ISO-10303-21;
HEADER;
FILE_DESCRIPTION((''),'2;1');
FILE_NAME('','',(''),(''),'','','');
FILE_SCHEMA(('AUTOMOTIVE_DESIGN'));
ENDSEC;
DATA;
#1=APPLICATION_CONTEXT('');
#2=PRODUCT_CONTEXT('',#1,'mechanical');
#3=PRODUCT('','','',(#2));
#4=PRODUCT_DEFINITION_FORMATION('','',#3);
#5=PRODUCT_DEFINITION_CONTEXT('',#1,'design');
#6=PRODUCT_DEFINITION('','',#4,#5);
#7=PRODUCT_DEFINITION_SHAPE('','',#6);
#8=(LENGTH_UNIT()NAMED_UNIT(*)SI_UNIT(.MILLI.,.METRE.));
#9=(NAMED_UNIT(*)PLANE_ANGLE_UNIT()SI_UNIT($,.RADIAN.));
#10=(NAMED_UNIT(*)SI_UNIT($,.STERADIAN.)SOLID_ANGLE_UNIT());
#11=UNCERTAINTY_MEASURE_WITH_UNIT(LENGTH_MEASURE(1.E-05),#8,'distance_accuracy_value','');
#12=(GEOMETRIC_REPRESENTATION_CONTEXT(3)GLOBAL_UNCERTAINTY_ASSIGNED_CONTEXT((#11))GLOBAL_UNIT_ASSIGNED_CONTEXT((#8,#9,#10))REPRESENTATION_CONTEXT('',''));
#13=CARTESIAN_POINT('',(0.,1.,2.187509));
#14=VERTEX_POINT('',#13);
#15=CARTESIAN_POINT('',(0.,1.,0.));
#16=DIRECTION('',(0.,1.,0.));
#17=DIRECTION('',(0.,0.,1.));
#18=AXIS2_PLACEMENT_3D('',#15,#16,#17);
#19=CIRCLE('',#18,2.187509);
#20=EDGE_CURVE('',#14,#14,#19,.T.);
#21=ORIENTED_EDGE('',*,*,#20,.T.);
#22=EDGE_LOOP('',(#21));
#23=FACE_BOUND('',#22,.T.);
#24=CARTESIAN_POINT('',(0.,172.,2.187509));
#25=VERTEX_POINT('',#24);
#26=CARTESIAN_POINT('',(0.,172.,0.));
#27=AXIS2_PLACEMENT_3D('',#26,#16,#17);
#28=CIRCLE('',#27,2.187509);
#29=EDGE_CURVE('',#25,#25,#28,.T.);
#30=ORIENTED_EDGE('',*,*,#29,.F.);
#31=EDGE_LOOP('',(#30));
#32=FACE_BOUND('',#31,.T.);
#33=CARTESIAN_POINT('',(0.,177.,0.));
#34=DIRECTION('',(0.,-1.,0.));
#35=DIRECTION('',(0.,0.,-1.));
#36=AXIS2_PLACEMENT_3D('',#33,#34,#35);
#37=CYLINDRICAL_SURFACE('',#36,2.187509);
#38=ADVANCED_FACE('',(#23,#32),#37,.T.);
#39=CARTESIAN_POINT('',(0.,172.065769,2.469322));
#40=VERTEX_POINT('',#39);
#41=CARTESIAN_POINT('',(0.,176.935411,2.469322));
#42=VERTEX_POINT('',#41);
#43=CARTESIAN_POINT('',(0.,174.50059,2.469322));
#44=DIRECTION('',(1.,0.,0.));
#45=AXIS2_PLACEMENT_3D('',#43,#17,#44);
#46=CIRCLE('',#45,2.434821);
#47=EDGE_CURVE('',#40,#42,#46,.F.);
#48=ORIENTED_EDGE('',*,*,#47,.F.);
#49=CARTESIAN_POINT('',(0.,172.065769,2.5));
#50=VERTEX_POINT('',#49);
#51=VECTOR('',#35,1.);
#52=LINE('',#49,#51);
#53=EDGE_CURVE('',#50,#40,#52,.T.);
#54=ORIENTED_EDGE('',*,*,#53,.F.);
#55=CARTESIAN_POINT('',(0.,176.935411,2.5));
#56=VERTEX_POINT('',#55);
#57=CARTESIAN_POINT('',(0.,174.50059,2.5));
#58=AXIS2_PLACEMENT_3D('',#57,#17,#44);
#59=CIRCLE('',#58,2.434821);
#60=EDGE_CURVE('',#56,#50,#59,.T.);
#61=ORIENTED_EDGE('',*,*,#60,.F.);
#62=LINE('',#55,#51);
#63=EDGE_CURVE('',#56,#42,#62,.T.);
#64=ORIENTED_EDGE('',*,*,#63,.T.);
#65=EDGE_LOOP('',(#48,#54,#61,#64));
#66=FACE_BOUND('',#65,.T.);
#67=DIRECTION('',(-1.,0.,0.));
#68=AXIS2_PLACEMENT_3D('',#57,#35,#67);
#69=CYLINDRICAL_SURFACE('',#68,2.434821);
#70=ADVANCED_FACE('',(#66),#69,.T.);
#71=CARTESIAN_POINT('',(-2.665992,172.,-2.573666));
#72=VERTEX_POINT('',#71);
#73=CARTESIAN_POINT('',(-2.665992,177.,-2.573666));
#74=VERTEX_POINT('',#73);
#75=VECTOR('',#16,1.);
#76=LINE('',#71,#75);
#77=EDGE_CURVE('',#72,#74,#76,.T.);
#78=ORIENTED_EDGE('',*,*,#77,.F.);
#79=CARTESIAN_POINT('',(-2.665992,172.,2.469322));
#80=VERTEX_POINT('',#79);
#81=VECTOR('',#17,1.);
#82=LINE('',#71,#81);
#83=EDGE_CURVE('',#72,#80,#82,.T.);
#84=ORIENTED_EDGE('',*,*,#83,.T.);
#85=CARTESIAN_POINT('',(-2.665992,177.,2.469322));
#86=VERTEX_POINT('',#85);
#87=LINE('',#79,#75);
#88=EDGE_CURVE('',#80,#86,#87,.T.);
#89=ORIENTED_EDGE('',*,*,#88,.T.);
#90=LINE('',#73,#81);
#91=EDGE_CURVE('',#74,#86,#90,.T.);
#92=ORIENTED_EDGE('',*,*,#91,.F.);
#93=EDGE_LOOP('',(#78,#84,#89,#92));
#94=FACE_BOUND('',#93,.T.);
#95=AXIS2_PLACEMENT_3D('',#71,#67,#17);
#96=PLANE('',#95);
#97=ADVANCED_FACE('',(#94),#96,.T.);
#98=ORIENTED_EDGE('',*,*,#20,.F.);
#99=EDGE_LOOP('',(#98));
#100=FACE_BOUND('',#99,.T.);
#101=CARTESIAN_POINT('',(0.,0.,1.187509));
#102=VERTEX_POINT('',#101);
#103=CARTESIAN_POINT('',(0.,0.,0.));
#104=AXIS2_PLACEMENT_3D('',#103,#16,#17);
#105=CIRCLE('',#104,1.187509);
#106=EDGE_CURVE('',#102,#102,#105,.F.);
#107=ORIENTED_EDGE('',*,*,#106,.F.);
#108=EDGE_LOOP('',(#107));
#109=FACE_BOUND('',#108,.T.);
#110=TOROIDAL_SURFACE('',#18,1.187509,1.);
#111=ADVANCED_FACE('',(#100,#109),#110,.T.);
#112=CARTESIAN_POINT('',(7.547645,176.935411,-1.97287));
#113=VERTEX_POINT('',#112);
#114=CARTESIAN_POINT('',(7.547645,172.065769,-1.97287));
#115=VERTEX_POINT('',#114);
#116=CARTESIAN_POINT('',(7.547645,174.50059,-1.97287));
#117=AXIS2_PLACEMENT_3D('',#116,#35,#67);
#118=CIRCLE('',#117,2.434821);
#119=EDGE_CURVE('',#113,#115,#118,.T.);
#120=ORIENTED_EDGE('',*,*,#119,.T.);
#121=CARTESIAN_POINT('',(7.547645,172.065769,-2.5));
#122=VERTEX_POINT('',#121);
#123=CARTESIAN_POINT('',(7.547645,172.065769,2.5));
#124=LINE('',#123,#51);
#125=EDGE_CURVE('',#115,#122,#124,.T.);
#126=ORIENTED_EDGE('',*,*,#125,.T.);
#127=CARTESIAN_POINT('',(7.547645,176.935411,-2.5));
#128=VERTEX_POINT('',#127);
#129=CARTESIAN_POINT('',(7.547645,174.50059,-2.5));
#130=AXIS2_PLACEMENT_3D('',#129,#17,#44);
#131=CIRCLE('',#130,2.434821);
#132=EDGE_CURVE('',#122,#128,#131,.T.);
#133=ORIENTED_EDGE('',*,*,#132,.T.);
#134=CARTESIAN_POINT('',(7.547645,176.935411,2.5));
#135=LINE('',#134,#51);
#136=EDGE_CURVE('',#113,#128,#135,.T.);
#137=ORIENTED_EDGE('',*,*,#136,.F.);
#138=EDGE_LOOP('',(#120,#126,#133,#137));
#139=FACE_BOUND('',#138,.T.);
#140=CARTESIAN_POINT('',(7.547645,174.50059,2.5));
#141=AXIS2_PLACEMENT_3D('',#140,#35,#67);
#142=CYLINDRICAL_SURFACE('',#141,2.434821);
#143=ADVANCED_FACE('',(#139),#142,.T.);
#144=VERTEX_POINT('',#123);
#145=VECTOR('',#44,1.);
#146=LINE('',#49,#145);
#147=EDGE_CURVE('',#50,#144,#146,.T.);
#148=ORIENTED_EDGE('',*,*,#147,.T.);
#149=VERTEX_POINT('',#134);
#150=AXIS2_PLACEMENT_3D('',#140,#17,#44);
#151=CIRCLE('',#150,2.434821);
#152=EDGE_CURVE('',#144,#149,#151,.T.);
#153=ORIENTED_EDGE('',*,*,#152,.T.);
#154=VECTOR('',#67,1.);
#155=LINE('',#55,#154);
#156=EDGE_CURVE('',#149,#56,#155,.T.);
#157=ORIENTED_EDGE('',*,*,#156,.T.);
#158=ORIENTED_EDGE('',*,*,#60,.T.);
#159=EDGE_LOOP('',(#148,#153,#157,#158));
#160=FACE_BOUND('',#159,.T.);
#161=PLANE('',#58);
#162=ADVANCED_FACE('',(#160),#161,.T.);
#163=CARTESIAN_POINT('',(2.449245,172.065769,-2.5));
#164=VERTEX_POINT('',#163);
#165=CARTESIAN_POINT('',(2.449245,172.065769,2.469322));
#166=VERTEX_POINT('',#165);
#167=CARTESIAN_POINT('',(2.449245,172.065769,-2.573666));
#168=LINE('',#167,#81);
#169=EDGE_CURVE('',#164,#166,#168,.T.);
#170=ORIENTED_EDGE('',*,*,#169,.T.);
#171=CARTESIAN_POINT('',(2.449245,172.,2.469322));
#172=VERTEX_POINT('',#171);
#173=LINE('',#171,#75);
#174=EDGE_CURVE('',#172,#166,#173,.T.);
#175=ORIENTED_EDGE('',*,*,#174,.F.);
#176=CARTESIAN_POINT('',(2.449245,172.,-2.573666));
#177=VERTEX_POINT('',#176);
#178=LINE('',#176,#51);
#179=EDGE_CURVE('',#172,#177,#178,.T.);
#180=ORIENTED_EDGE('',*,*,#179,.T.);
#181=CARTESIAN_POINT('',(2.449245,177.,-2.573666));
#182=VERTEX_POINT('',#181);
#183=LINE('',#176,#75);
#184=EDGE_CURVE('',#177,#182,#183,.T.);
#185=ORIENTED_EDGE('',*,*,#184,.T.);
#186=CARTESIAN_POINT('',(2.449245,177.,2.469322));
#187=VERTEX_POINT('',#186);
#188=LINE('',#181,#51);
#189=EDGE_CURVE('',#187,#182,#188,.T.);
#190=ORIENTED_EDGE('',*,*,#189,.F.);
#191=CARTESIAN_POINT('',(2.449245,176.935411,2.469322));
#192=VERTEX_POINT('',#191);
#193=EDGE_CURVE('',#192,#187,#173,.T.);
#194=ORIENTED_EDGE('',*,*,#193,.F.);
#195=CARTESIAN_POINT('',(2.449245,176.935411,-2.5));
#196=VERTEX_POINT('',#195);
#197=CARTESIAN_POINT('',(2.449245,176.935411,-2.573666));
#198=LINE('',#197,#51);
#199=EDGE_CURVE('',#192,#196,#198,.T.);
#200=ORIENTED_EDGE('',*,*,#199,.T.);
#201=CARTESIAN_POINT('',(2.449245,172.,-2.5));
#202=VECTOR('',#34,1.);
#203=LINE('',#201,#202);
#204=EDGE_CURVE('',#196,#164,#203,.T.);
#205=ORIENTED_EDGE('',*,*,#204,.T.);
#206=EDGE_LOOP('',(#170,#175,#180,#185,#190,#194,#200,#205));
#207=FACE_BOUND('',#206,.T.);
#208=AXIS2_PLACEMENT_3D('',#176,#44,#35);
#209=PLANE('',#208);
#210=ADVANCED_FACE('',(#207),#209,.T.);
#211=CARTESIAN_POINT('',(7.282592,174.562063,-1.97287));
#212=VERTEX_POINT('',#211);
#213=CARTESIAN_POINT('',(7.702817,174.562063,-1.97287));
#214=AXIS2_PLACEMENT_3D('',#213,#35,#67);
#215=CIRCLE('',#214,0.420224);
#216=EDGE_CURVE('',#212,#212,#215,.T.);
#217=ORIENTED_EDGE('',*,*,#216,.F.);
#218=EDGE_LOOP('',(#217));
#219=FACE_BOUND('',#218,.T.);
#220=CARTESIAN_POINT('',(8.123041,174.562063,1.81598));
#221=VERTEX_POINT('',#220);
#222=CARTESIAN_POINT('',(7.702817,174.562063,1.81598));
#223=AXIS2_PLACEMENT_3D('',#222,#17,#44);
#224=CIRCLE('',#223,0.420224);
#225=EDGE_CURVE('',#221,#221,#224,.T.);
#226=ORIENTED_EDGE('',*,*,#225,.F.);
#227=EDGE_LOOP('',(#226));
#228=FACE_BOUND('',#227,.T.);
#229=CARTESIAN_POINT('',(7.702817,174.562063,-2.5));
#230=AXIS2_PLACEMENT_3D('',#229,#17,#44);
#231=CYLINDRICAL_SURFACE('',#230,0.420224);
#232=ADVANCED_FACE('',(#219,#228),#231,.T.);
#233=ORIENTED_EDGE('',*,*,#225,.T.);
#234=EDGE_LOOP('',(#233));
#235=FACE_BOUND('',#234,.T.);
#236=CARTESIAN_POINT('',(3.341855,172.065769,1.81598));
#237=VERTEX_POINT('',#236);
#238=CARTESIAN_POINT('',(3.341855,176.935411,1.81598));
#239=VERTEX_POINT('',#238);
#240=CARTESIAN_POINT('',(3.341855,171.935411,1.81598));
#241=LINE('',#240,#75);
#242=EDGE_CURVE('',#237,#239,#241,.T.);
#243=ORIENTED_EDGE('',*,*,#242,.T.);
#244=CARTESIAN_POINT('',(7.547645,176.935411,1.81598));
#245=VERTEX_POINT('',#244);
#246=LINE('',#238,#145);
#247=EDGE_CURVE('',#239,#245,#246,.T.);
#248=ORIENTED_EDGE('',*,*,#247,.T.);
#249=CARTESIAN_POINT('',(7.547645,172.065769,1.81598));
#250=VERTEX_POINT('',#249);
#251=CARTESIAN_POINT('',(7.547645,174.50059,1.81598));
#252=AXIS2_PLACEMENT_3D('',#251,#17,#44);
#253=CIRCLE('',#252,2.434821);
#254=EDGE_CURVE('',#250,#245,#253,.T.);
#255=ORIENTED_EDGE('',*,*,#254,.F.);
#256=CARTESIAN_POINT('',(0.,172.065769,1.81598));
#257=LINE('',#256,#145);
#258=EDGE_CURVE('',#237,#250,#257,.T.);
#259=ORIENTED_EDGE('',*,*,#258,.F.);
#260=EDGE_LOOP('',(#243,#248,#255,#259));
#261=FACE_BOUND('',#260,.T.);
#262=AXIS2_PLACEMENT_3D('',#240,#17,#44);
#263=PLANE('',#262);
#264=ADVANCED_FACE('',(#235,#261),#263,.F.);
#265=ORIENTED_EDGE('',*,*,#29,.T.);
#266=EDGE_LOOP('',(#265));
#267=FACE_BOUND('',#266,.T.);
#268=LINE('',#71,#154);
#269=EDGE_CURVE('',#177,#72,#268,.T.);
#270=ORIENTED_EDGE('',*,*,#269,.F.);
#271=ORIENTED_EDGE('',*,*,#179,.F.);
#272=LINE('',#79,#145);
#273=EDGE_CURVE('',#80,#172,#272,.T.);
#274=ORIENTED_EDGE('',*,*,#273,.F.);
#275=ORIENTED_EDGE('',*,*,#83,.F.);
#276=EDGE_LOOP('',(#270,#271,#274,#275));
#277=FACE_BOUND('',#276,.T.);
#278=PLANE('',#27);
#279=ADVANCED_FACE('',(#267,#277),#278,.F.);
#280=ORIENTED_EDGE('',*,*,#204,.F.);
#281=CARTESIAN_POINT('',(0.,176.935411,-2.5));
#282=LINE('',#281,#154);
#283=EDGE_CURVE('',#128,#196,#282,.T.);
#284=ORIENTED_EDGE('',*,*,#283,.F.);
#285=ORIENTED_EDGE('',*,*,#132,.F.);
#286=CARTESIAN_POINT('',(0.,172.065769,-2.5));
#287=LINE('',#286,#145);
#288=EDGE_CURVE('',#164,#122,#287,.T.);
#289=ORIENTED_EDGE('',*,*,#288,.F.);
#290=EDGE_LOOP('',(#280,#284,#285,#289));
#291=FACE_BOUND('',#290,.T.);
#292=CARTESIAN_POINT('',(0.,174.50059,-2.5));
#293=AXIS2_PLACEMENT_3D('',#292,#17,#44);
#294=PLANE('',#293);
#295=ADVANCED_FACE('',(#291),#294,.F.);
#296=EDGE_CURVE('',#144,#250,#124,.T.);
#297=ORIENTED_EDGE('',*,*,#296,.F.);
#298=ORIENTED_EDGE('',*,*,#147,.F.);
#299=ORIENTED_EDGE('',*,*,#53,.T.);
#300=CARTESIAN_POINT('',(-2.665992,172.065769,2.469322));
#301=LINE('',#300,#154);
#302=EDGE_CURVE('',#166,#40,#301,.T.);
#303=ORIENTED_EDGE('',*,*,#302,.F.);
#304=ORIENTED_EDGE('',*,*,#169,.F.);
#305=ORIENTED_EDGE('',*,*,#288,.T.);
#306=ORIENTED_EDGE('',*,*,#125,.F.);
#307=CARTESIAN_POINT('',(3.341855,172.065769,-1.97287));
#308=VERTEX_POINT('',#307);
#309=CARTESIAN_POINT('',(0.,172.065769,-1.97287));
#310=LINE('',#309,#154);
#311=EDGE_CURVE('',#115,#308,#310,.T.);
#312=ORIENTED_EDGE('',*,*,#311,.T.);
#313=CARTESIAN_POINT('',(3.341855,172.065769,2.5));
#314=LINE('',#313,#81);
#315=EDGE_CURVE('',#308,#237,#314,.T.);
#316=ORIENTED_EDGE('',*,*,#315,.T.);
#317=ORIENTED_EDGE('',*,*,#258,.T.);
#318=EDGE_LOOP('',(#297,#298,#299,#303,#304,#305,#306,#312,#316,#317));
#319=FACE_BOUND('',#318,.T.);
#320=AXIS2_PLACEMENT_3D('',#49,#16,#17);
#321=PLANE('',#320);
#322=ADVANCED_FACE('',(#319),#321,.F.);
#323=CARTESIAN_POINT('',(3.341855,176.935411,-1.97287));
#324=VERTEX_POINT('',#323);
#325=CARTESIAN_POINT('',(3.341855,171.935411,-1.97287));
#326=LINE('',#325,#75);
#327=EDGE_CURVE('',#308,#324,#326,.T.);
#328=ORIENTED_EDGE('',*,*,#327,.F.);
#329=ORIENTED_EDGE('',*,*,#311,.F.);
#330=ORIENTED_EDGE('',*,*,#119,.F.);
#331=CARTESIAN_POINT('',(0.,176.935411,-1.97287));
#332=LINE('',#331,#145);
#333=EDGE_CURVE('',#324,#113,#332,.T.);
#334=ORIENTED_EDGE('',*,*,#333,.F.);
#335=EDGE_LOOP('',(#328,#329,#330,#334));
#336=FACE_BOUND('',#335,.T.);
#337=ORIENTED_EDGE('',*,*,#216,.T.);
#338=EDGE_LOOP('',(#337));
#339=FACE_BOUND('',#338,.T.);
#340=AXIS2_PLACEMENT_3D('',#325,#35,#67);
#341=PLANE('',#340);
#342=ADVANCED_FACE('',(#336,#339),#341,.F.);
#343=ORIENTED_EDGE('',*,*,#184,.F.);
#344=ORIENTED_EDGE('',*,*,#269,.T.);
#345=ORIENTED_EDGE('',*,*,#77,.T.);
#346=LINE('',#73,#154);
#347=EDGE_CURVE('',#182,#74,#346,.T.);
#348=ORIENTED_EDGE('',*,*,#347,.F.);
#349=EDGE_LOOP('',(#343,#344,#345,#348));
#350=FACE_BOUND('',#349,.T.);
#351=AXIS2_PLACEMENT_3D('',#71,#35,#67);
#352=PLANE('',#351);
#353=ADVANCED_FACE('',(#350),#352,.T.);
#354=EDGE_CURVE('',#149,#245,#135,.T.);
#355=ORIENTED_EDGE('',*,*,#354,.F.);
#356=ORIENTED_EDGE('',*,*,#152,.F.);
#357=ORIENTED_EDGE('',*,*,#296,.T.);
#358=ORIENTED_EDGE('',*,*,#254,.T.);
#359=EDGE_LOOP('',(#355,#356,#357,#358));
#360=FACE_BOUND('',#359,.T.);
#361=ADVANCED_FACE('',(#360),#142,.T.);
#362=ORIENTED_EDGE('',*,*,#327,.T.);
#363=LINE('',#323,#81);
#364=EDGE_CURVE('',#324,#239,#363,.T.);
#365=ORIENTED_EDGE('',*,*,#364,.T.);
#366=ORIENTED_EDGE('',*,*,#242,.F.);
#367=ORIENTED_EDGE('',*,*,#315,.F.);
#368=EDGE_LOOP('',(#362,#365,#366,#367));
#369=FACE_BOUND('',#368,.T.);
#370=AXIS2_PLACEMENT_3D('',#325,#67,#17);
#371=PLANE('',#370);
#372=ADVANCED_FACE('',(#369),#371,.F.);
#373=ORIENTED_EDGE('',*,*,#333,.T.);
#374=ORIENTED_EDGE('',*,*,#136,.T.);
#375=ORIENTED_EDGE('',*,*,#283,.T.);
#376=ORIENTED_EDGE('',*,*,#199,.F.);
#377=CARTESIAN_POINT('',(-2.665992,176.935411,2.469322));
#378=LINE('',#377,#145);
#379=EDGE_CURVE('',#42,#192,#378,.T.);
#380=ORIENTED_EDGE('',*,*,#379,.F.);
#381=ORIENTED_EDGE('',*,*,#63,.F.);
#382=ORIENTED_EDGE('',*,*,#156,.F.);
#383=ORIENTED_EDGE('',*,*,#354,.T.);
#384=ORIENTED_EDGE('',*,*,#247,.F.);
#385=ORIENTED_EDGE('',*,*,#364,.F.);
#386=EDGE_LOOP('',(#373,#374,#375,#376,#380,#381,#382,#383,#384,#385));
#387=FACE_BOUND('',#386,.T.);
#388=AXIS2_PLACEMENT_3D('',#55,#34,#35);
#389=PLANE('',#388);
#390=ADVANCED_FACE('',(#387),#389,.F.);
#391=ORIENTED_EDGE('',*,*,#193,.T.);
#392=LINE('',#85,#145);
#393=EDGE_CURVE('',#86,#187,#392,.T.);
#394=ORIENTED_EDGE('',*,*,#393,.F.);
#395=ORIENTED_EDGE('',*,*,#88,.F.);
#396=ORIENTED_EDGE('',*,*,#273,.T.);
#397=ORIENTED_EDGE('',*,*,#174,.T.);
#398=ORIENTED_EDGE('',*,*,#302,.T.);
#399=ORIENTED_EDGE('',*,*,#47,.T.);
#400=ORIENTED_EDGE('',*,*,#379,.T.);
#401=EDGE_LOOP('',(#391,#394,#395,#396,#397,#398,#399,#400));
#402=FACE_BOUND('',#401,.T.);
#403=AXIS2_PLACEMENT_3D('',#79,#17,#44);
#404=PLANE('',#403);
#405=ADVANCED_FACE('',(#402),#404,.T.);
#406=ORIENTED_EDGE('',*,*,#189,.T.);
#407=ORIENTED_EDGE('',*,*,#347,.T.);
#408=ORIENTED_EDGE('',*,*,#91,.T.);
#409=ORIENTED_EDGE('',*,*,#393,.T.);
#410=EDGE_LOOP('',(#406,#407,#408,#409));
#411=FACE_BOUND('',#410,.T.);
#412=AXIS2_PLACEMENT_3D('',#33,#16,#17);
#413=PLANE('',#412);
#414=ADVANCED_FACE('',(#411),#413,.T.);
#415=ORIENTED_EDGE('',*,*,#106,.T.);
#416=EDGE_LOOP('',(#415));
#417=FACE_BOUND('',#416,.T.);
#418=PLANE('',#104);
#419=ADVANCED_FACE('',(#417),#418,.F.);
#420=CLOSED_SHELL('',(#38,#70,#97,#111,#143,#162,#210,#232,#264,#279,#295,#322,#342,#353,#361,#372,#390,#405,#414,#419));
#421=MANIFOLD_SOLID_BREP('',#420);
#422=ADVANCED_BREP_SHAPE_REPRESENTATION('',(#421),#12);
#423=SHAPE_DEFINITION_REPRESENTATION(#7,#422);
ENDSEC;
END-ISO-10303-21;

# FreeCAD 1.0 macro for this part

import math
import FreeCAD as App
import Part
import Sketcher
from FreeCAD import Vector


def edges_at(feature, points):
    """Names of the edges that pass closest to the given points."""
    edges = feature.Shape.Edges
    near = lambda p: min(range(len(edges)), key=lambda i: edges[i].distToShape(Part.Vertex(*p))[0])
    return sorted({f"Edge{near(p) + 1}" for p in points})


def add_polygon(sketch, points):
    """Adds a closed chain of lines whose ends are joined by coincident constraints."""
    first, n = sketch.GeometryCount, len(points)
    for a, b in zip(points, points[1:] + points[:1]):
        sketch.addGeometry(Part.LineSegment(App.Vector(*a, 0), App.Vector(*b, 0)), False)
    for i in range(n):
        sketch.addConstraint(Sketcher.Constraint("Coincident", first + i, 2, first + (i + 1) % n, 1))

doc = App.newDocument("Part")
body = doc.addObject("PartDesign::Body", "Body")

# Sketch on XZ plane
sketch1 = doc.addObject("Sketcher::SketchObject", "Sketch")
body.addObject(sketch1)
sketch1.AttachmentSupport = (doc.XZ_Plane, [""])
sketch1.MapMode = "FlatFace"
sketch1.addGeometry(Part.Circle(Vector(0, 0, 0), Vector(0, 0, 1), 2.2), False)
sketch1.addConstraint([
    Sketcher.Constraint("Coincident", 0, 3, -1, 1),
    Sketcher.Constraint("Diameter", 0, 4.375017),
])
pad1 = doc.addObject("PartDesign::Pad", "Pad")
body.addObject(pad1)
pad1.Profile = sketch1
pad1.Length = 177
pad1.Reversed = True
doc.recompute()

fillet = doc.addObject("PartDesign::Fillet", "Fillet")
body.addObject(fillet)
fillet.Base = (pad1, edges_at(pad1, [(-2.188, 0, 0)]))
fillet.Radius = 1

# Sketch on XZ plane
sketch2 = doc.addObject("Sketcher::SketchObject", "Sketch001")
body.addObject(sketch2)
sketch2.AttachmentSupport = (doc.XZ_Plane, [""])
sketch2.MapMode = "FlatFace"
sketch2.AttachmentOffset = App.Placement(Vector(0, 0, -177), App.Rotation())
add_polygon(sketch2, [(-3, -3), (-3, 2), (2, 2), (2, -3)])  # lines 0-3
sketch2.addConstraint([
    Sketcher.Constraint("Vertical", 0),
    Sketcher.Constraint("Horizontal", 1),
    Sketcher.Constraint("Vertical", 2),
    Sketcher.Constraint("Horizontal", 3),
    Sketcher.Constraint("DistanceX", 1, 1, 1, 2, 5.115237),
    Sketcher.Constraint("DistanceY", 0, 1, 0, 2, 5.042988),
    Sketcher.Constraint("DistanceX", 0, 2, -1, 1, 2.665992),
    Sketcher.Constraint("DistanceY", -1, 1, 0, 2, 2.469322),
])
pad2 = doc.addObject("PartDesign::Pad", "Pad001")
body.addObject(pad2)
pad2.Profile = sketch2
pad2.Length = 5

# Sketch on XY plane
sketch3 = doc.addObject("Sketcher::SketchObject", "Sketch002")
body.addObject(sketch3)
sketch3.AttachmentSupport = (doc.XY_Plane, [""])
sketch3.MapMode = "FlatFace"
sketch3.addGeometry([
    Part.LineSegment(Vector(7.5, 176.9, 0), Vector(0, 176.9, 0)),
    Part.ArcOfCircle(Part.Circle(Vector(0, 174.5, 0), Vector(0, 0, 1), 2.4), math.radians(90), math.radians(270)),
    Part.LineSegment(Vector(0, 172.1, 0), Vector(7.5, 172.1, 0)),
    Part.ArcOfCircle(Part.Circle(Vector(7.5, 174.5, 0), Vector(0, 0, 1), 2.4), math.radians(-90), math.radians(90)),
], False)
sketch3.addConstraint([
    Sketcher.Constraint("Tangent", 0, 2, 1, 1),
    Sketcher.Constraint("Tangent", 1, 2, 2, 1),
    Sketcher.Constraint("Tangent", 2, 2, 3, 1),
    Sketcher.Constraint("Tangent", 3, 2, 0, 1),
    Sketcher.Constraint("Horizontal", 0),
    Sketcher.Constraint("Horizontal", 2),
    Sketcher.Constraint("PointOnObject", 1, 3, -2),
    Sketcher.Constraint("Radius", 1, 2.434821),
    Sketcher.Constraint("DistanceX", 0, 2, 0, 1, 7.547645),
    Sketcher.Constraint("DistanceY", -1, 1, 1, 3, 174.50059),
])
pad3 = doc.addObject("PartDesign::Pad", "Pad002")
body.addObject(pad3)
pad3.Profile = sketch3
pad3.Length = 5
pad3.Midplane = True

# Sketch on XZ plane
sketch4 = doc.addObject("Sketcher::SketchObject", "Sketch003")
body.addObject(sketch4)
sketch4.AttachmentSupport = (doc.XZ_Plane, [""])
sketch4.MapMode = "FlatFace"
sketch4.AttachmentOffset = App.Placement(Vector(0, 0, -176.935411), App.Rotation())
add_polygon(sketch4, [(3.3, -2), (3.3, 1.8), (13.3, 1.8), (13.3, -2)])  # lines 0-3
sketch4.addConstraint([
    Sketcher.Constraint("Vertical", 0),
    Sketcher.Constraint("Horizontal", 1),
    Sketcher.Constraint("Vertical", 2),
    Sketcher.Constraint("Horizontal", 3),
    Sketcher.Constraint("DistanceY", 0, 1, 0, 2, 3.78885),
    Sketcher.Constraint("DistanceX", 1, 1, 1, 2, 9.955982),
    Sketcher.Constraint("DistanceY", -1, 1, 0, 2, 1.81598),
    Sketcher.Constraint("DistanceX", -1, 1, 0, 2, 3.341855),
])
pocket1 = doc.addObject("PartDesign::Pocket", "Pocket")
body.addObject(pocket1)
pocket1.Profile = sketch4
pocket1.Length = 5
pocket1.Reversed = True

# Sketch on XY plane
sketch5 = doc.addObject("Sketcher::SketchObject", "Sketch004")
body.addObject(sketch5)
sketch5.AttachmentSupport = (doc.XY_Plane, [""])
sketch5.MapMode = "FlatFace"
sketch5.AttachmentOffset = App.Placement(Vector(0, 0, 2.5), App.Rotation())
sketch5.addGeometry(Part.Circle(Vector(7.7, 174.56, 0), Vector(0, 0, 1), 0.42), False)
sketch5.addConstraint([
    Sketcher.Constraint("Diameter", 0, 0.840449),
    Sketcher.Constraint("DistanceX", -1, 1, 0, 3, 7.702817),
    Sketcher.Constraint("DistanceY", -1, 1, 0, 3, 174.562063),
])
pad4 = doc.addObject("PartDesign::Pad", "Pad003")
body.addObject(pad4)
pad4.Profile = sketch5
pad4.Length = 5
pad4.Reversed = True

doc.recompute()
